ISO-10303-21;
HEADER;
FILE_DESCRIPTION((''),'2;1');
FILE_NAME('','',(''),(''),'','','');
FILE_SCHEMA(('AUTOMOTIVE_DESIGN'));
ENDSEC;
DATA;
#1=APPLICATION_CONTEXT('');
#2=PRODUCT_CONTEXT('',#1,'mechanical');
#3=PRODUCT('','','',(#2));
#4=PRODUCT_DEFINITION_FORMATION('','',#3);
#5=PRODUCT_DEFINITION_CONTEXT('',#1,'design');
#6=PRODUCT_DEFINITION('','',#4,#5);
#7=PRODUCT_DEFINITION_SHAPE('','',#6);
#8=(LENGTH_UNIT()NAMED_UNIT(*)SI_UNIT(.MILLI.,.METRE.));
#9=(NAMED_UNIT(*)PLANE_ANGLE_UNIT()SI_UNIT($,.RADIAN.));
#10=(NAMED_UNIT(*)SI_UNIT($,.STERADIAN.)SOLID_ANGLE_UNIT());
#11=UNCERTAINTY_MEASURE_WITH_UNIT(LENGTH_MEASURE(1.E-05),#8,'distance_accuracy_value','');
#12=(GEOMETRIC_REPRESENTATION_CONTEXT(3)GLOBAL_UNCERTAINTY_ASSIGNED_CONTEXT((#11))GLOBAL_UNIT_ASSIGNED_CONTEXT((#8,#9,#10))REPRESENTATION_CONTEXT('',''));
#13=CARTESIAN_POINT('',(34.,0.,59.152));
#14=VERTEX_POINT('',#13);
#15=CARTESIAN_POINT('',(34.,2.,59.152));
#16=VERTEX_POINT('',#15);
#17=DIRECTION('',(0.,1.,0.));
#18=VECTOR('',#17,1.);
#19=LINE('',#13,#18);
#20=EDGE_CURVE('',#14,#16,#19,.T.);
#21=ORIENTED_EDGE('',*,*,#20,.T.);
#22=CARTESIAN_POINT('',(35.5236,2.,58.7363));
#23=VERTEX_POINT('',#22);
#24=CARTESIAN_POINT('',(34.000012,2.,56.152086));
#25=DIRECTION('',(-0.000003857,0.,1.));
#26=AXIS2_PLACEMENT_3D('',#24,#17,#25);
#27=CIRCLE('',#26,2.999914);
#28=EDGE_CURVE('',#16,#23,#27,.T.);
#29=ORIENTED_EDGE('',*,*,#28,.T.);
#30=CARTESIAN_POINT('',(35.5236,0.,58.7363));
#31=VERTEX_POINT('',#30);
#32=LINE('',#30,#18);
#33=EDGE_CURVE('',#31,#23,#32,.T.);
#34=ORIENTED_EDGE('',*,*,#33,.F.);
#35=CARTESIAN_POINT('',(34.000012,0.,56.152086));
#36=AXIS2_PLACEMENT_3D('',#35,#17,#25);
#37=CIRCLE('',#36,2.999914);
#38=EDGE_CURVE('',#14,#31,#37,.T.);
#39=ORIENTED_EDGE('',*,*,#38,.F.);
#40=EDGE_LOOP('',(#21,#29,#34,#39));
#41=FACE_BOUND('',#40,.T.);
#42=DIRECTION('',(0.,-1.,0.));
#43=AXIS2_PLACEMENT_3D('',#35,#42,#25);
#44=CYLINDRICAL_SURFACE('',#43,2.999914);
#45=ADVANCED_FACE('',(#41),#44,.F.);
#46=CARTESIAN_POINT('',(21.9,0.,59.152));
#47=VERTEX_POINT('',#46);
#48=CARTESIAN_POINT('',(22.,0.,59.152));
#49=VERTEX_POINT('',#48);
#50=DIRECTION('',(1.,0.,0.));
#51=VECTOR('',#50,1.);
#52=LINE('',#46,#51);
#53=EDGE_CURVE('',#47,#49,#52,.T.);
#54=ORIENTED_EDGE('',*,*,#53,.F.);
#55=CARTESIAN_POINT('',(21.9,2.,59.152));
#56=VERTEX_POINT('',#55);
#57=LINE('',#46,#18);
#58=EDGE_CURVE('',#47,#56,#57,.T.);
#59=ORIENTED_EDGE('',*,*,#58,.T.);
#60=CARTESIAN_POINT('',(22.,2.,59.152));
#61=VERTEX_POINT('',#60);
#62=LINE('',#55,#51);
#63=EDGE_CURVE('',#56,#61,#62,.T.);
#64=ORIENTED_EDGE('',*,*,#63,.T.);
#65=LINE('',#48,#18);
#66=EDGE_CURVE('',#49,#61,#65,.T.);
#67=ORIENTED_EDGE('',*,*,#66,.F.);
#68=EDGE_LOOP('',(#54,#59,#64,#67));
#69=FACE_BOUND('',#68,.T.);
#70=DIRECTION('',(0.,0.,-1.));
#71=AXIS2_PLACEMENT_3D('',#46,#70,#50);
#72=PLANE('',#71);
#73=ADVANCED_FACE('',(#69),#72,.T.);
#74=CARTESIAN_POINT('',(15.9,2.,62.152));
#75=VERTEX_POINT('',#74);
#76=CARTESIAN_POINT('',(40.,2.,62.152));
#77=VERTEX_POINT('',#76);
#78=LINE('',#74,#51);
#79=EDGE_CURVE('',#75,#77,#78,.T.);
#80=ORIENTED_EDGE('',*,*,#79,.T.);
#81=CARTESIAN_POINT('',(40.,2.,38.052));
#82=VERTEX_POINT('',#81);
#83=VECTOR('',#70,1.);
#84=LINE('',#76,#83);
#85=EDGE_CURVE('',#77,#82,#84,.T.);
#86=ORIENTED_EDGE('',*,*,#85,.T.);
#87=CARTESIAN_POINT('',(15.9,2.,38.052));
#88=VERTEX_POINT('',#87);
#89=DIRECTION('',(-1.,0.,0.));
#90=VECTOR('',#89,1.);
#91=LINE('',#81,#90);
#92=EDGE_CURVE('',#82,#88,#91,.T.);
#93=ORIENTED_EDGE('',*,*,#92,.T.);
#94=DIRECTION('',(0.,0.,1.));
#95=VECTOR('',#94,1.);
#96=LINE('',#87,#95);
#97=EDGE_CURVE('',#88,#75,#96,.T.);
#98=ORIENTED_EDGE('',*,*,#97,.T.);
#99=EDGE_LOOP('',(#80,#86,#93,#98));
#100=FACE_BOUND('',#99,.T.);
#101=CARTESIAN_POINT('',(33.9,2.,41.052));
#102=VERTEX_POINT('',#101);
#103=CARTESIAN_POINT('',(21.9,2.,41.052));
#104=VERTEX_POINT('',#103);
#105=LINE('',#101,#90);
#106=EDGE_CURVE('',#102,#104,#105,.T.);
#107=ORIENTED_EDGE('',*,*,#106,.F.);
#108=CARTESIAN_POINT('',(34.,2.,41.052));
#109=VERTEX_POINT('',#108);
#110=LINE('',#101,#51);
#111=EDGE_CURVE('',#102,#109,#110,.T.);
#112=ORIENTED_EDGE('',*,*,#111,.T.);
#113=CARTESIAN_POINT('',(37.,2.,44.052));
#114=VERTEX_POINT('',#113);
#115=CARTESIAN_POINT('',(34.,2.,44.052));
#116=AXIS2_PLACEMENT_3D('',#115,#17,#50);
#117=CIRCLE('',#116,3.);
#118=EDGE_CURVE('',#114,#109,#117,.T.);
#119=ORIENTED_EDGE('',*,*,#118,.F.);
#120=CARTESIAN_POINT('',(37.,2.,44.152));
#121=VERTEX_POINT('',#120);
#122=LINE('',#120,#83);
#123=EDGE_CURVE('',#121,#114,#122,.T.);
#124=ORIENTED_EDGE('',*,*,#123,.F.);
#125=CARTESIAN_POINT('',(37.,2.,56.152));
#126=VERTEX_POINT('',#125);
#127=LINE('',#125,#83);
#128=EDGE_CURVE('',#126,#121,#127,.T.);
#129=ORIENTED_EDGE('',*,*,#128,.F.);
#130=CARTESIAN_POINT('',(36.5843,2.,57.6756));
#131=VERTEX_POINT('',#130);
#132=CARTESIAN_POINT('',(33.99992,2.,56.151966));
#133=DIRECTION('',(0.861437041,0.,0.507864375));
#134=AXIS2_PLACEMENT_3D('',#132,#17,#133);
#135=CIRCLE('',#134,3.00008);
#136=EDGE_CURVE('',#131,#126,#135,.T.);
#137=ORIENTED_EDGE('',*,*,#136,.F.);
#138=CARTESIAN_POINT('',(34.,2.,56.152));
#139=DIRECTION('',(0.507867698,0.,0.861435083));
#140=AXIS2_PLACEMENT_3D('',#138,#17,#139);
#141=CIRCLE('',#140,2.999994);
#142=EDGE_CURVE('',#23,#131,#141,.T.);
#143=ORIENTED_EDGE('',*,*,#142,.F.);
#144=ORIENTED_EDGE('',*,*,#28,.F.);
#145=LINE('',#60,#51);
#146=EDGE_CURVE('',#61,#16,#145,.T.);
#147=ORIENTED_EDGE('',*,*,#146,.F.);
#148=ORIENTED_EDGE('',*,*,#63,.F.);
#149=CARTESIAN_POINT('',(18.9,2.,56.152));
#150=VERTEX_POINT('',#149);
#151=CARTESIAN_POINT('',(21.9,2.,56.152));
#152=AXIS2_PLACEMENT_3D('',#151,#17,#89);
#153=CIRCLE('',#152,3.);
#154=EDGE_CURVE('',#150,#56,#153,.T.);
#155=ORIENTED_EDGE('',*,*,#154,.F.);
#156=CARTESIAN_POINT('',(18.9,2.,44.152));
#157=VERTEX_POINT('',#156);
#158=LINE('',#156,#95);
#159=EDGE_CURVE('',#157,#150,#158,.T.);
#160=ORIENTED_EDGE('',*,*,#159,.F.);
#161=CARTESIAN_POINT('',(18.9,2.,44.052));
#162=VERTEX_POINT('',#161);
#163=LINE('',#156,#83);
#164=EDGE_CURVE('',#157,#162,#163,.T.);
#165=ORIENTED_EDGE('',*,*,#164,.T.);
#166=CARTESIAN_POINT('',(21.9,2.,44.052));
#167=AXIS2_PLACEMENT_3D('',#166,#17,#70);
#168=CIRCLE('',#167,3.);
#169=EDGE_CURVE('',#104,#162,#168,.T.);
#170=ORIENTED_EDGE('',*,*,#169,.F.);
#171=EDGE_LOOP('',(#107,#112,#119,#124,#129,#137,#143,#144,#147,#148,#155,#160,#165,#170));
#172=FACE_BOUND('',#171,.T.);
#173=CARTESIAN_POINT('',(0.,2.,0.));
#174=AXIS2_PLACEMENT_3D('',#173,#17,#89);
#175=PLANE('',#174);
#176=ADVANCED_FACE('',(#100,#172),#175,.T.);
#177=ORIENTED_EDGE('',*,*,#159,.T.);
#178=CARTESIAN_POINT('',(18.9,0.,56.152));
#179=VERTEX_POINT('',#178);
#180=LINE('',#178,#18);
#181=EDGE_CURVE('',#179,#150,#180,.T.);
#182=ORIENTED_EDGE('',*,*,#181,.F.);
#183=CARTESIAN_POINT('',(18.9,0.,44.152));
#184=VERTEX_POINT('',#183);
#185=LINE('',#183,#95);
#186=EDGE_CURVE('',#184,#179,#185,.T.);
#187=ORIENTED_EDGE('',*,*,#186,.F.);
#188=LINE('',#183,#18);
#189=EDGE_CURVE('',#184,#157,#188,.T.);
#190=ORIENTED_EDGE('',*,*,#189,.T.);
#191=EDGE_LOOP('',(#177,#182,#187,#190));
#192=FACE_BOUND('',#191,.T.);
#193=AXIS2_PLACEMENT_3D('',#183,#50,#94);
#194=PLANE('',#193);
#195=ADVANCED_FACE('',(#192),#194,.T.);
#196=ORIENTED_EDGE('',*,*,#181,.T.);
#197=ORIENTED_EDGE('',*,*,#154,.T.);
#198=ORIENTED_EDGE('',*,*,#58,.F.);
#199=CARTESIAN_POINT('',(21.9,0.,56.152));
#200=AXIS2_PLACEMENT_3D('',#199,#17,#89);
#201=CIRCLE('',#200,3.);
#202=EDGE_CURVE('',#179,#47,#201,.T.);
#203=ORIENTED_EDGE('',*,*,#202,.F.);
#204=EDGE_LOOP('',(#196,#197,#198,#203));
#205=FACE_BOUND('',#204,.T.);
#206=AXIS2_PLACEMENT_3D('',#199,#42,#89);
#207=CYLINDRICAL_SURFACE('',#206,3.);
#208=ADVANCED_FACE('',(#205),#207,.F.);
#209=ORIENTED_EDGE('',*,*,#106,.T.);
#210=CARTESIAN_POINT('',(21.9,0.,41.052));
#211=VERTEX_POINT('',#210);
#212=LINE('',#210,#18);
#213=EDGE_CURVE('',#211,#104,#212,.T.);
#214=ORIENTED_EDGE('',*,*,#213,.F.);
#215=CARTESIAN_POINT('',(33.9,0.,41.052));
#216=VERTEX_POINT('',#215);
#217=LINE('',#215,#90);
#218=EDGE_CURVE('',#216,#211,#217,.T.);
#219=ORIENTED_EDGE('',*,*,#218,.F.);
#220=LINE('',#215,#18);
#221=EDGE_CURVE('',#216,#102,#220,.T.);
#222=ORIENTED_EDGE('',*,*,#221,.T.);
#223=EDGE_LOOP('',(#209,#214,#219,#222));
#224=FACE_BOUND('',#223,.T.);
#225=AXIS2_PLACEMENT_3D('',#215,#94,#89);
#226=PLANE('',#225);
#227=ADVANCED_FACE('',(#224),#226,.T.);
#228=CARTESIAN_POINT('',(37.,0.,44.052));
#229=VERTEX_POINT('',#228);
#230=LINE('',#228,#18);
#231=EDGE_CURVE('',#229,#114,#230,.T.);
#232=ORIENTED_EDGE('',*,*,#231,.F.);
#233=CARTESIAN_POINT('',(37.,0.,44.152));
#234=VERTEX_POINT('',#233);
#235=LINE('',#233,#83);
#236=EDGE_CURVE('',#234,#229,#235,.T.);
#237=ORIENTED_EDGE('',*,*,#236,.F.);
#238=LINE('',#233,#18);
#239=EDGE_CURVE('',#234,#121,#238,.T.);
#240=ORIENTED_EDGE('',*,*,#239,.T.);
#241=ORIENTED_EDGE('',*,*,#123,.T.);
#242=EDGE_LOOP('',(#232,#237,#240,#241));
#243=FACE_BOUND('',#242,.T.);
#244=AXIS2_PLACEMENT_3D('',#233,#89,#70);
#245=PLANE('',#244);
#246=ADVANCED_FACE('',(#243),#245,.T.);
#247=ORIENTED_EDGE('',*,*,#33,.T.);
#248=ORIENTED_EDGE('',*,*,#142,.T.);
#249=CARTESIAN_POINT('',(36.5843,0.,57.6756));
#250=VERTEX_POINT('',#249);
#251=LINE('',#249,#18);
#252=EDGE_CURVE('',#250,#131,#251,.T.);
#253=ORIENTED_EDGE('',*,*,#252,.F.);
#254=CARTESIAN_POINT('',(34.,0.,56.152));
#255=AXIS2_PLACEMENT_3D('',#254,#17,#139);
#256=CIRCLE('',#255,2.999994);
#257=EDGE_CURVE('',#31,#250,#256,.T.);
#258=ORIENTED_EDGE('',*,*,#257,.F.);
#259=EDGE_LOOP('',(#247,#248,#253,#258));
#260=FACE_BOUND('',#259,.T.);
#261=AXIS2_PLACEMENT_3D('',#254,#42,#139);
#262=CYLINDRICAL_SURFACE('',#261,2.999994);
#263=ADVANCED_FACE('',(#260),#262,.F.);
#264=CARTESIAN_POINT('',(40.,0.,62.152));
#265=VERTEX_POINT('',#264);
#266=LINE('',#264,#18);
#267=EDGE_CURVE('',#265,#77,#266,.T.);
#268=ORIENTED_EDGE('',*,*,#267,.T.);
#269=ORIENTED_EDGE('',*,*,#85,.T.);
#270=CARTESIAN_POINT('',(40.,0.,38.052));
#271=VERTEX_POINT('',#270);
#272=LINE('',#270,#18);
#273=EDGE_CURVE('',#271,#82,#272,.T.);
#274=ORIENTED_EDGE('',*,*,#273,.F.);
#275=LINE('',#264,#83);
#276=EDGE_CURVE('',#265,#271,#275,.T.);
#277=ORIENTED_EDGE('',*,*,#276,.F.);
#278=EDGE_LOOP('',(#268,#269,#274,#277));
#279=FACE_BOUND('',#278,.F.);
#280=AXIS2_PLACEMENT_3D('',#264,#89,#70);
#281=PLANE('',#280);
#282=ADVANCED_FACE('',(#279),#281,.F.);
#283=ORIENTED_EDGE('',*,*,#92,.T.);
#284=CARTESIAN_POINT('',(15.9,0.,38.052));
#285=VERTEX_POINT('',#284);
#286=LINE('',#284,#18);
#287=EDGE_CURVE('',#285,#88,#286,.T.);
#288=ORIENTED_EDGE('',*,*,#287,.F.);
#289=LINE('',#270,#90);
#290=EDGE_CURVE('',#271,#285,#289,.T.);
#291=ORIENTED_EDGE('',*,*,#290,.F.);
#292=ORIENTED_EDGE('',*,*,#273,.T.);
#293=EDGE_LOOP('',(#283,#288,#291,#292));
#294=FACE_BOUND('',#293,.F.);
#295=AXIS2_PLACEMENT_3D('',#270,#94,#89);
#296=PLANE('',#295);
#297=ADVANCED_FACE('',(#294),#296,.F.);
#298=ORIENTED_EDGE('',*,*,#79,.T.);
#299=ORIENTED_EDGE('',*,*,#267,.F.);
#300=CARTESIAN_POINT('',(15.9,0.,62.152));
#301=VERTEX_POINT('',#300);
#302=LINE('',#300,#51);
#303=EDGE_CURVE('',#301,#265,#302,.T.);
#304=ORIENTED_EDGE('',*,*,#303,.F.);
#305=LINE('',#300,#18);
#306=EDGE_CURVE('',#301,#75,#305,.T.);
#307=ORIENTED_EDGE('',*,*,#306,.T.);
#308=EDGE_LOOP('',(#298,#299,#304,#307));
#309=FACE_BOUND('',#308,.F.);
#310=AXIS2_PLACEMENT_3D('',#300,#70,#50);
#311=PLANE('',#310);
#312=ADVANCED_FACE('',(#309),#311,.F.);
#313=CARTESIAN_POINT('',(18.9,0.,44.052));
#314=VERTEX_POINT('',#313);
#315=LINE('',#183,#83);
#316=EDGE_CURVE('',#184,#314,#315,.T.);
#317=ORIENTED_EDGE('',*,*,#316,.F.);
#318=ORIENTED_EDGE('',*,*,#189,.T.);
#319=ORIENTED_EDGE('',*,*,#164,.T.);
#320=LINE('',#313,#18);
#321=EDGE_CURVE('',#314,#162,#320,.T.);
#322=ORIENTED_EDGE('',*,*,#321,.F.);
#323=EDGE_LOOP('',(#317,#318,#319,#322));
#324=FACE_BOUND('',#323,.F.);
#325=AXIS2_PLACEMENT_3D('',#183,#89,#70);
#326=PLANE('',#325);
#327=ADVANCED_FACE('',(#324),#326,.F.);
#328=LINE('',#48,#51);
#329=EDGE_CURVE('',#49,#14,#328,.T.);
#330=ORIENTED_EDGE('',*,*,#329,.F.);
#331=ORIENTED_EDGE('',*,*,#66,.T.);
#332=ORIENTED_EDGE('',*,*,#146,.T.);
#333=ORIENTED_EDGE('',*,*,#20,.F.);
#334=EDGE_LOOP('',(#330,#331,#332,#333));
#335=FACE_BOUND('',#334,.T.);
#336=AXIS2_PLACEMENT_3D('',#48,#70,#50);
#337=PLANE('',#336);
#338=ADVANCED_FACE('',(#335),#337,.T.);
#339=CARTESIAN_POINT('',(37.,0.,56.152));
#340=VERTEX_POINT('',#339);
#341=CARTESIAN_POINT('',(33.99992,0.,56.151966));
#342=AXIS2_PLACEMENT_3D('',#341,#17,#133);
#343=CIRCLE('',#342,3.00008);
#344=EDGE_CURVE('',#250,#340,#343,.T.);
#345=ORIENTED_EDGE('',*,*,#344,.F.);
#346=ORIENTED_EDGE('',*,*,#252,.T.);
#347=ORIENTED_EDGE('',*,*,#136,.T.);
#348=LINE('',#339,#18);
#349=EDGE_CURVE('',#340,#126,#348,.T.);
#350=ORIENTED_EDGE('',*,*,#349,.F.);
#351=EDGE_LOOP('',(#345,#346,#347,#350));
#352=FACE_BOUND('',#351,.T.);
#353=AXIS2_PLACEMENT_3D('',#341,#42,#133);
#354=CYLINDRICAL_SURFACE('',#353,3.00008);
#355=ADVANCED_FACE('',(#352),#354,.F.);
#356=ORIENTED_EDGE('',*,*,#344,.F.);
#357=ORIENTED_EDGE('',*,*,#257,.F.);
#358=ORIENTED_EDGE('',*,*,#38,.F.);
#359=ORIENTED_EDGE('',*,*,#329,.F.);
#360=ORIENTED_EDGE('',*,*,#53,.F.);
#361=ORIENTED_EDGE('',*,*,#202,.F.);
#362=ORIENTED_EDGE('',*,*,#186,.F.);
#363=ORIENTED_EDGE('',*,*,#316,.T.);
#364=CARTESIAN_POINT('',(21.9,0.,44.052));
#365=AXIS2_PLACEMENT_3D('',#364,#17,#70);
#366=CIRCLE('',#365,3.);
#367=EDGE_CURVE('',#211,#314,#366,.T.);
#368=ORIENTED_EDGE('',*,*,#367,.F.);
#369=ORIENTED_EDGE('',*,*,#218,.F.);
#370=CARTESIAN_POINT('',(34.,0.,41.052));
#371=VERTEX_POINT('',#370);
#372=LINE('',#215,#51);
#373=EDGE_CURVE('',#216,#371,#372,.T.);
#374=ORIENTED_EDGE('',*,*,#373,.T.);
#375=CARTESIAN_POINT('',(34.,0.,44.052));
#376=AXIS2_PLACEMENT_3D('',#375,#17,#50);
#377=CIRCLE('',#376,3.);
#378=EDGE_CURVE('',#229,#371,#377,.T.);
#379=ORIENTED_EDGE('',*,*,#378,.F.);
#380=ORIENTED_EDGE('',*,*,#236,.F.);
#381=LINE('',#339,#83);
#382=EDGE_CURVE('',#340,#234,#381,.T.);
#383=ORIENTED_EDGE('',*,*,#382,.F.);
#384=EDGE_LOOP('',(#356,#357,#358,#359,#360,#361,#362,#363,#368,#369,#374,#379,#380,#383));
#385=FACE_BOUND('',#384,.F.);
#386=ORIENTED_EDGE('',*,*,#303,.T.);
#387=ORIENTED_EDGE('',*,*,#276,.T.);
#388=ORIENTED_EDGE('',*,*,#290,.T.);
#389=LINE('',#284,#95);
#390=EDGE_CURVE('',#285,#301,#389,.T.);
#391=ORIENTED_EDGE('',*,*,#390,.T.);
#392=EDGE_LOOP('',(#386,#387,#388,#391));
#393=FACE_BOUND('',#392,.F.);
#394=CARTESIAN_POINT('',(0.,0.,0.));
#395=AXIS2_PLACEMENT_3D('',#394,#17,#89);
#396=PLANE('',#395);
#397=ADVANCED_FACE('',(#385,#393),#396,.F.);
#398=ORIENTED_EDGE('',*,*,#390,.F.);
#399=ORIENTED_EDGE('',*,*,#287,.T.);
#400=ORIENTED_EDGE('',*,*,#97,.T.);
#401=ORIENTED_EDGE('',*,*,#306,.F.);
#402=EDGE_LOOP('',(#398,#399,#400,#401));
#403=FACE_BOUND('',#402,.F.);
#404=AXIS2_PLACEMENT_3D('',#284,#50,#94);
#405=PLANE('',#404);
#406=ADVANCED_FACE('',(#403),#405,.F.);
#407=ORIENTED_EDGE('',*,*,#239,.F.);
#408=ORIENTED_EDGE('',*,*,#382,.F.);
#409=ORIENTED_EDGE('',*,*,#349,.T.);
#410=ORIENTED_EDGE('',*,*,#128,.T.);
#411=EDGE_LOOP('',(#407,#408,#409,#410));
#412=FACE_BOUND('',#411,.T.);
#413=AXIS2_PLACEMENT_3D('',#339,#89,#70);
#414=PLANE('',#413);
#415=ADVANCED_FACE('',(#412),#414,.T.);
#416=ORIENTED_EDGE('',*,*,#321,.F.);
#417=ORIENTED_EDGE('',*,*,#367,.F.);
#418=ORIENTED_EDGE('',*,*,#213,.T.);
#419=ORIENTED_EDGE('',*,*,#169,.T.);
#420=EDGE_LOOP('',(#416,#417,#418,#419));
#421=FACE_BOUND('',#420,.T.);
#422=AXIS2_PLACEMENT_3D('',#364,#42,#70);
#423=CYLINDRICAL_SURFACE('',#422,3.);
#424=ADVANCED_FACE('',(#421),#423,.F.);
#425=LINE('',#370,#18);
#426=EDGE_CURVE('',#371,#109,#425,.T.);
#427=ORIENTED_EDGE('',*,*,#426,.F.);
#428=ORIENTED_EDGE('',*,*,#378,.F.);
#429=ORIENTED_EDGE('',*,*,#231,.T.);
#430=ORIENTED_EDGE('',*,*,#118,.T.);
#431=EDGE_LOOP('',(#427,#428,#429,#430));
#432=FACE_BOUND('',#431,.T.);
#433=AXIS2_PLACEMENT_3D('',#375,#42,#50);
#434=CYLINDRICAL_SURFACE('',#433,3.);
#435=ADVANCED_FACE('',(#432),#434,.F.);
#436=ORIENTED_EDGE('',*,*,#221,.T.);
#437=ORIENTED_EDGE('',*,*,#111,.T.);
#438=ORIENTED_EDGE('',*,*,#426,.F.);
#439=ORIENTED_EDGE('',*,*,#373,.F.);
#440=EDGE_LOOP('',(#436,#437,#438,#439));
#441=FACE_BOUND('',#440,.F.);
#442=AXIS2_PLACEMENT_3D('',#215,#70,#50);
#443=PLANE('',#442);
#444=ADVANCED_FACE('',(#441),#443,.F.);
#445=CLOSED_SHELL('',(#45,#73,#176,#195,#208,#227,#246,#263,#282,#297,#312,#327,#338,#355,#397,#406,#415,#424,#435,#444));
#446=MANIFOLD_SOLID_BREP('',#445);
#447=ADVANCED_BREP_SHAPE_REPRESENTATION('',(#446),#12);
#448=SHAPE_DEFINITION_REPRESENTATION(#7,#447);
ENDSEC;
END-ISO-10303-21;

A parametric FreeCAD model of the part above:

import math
import FreeCAD as App
import Part
import Sketcher
Q = App.Units.Quantity


def add_polygon(sketch, points):
    """Adds a closed chain of lines whose ends are joined by coincident constraints."""
    first, n = sketch.GeometryCount, len(points)
    for a, b in zip(points, points[1:] + points[:1]):
        sketch.addGeometry(Part.LineSegment(App.Vector(*a, 0), App.Vector(*b, 0)), False)
    for i in range(n):
        sketch.addConstraint(Sketcher.Constraint("Coincident", first + i, 2, first + (i + 1) % n, 1))

doc = App.newDocument("Part")
body = doc.addObject("PartDesign::Body", "Body")

# Sketch on XZ plane
sketch1 = body.newObject("Sketcher::SketchObject", "Sketch")
sketch1.AttachmentSupport = (doc.getObject("XZ_Plane"), [""])
sketch1.MapMode = "FlatFace"
add_polygon(sketch1, [(15.9, 38.052), (15.9, 62.152), (40, 62.152), (40, 38.052)])  # lines 0-3
sketch1.addGeometry(Part.LineSegment(App.Vector(34, 59.152, 0), App.Vector(21.9, 59.152, 0)), False)  # 4
sketch1.addGeometry(Part.ArcOfCircle(Part.Circle(App.Vector(21.9, 56.152, 0), App.Vector(0, 0, 1), 3), math.radians(90), math.radians(180)), False)  # 5
sketch1.addGeometry(Part.LineSegment(App.Vector(18.9, 56.152, 0), App.Vector(18.9, 44.052, 0)), False)  # 6
sketch1.addGeometry(Part.ArcOfCircle(Part.Circle(App.Vector(21.9, 44.052, 0), App.Vector(0, 0, 1), 3), math.radians(180), math.radians(270)), False)  # 7
sketch1.addGeometry(Part.LineSegment(App.Vector(21.9, 41.052, 0), App.Vector(34, 41.052, 0)), False)  # 8
sketch1.addGeometry(Part.ArcOfCircle(Part.Circle(App.Vector(34, 44.052, 0), App.Vector(0, 0, 1), 3), math.radians(-90), math.radians(0)), False)  # 9
sketch1.addGeometry(Part.LineSegment(App.Vector(37, 44.052, 0), App.Vector(37, 56.152, 0)), False)  # 10
sketch1.addGeometry(Part.ArcOfCircle(Part.Circle(App.Vector(34, 56.152, 0), App.Vector(0, 0, 1), 3), math.radians(0), math.radians(30.521902)), False)  # 11
sketch1.addGeometry(Part.ArcOfCircle(Part.Circle(App.Vector(34, 56.152, 0), App.Vector(0, 0, 1), 2.999994), math.radians(30.521902), math.radians(59.478098)), False)  # 12
sketch1.addGeometry(Part.ArcOfCircle(Part.Circle(App.Vector(34, 56.152, 0), App.Vector(0, 0, 1), 2.999994), math.radians(59.478098), math.radians(90)), False)  # 13
sketch1.addConstraint([
    Sketcher.Constraint("Tangent", 4, 2, 5, 1),
    Sketcher.Constraint("Tangent", 5, 2, 6, 1),
    Sketcher.Constraint("Tangent", 6, 2, 7, 1),
    Sketcher.Constraint("Tangent", 7, 2, 8, 1),
    Sketcher.Constraint("Tangent", 8, 2, 9, 1),
    Sketcher.Constraint("Tangent", 9, 2, 10, 1),
    Sketcher.Constraint("Tangent", 10, 2, 11, 1),
    Sketcher.Constraint("Tangent", 11, 2, 12, 1),
    Sketcher.Constraint("Tangent", 12, 2, 13, 1),
    Sketcher.Constraint("Tangent", 13, 2, 4, 1),
    Sketcher.Constraint("Vertical", 0),
    Sketcher.Constraint("Horizontal", 1),
    Sketcher.Constraint("Vertical", 2),
    Sketcher.Constraint("Horizontal", 3),
    Sketcher.Constraint("Horizontal", 4),
    Sketcher.Constraint("Vertical", 6),
    Sketcher.Constraint("Horizontal", 8),
    Sketcher.Constraint("Vertical", 10),
    Sketcher.Constraint("Coincident", 13, 3, 11, 3),
    Sketcher.Constraint("Equal", 5, 7),
    Sketcher.Constraint("Equal", 7, 9),
    Sketcher.Constraint("Equal", 9, 11),
    Sketcher.Constraint("Equal", 3, 0),
    Sketcher.Constraint("Equal", 8, 6),
    Sketcher.Constraint("Radius", 5, Q("3 mm")),
    Sketcher.Constraint("DistanceY", 4, 2, 0, 2, Q("3 mm")),
    Sketcher.Constraint("DistanceX", 0, 2, 5, 2, Q("3 mm")),
    Sketcher.Constraint("DistanceY", 3, 2, 7, 2, Q("3 mm")),
    Sketcher.Constraint("DistanceY", 7, 3, 0, 2, Q("18.1 mm")),
    Sketcher.Constraint("DistanceX", -1, 1, 9, 3, Q("34 mm")),
    Sketcher.Constraint("DistanceY", -1, 1, 5, 3, Q("56.152 mm")),
    Sketcher.Constraint("DistanceX", -1, 1, 11, 2, Q("36.5843 mm")),
    Sketcher.Constraint("DistanceX", -1, 1, 12, 2, Q("35.5236 mm")),
])
pad1 = body.newObject("PartDesign::Pad", "Pad")
pad1.Profile = sketch1
pad1.Length = 2
pad1.Reversed = True

doc.recompute()
